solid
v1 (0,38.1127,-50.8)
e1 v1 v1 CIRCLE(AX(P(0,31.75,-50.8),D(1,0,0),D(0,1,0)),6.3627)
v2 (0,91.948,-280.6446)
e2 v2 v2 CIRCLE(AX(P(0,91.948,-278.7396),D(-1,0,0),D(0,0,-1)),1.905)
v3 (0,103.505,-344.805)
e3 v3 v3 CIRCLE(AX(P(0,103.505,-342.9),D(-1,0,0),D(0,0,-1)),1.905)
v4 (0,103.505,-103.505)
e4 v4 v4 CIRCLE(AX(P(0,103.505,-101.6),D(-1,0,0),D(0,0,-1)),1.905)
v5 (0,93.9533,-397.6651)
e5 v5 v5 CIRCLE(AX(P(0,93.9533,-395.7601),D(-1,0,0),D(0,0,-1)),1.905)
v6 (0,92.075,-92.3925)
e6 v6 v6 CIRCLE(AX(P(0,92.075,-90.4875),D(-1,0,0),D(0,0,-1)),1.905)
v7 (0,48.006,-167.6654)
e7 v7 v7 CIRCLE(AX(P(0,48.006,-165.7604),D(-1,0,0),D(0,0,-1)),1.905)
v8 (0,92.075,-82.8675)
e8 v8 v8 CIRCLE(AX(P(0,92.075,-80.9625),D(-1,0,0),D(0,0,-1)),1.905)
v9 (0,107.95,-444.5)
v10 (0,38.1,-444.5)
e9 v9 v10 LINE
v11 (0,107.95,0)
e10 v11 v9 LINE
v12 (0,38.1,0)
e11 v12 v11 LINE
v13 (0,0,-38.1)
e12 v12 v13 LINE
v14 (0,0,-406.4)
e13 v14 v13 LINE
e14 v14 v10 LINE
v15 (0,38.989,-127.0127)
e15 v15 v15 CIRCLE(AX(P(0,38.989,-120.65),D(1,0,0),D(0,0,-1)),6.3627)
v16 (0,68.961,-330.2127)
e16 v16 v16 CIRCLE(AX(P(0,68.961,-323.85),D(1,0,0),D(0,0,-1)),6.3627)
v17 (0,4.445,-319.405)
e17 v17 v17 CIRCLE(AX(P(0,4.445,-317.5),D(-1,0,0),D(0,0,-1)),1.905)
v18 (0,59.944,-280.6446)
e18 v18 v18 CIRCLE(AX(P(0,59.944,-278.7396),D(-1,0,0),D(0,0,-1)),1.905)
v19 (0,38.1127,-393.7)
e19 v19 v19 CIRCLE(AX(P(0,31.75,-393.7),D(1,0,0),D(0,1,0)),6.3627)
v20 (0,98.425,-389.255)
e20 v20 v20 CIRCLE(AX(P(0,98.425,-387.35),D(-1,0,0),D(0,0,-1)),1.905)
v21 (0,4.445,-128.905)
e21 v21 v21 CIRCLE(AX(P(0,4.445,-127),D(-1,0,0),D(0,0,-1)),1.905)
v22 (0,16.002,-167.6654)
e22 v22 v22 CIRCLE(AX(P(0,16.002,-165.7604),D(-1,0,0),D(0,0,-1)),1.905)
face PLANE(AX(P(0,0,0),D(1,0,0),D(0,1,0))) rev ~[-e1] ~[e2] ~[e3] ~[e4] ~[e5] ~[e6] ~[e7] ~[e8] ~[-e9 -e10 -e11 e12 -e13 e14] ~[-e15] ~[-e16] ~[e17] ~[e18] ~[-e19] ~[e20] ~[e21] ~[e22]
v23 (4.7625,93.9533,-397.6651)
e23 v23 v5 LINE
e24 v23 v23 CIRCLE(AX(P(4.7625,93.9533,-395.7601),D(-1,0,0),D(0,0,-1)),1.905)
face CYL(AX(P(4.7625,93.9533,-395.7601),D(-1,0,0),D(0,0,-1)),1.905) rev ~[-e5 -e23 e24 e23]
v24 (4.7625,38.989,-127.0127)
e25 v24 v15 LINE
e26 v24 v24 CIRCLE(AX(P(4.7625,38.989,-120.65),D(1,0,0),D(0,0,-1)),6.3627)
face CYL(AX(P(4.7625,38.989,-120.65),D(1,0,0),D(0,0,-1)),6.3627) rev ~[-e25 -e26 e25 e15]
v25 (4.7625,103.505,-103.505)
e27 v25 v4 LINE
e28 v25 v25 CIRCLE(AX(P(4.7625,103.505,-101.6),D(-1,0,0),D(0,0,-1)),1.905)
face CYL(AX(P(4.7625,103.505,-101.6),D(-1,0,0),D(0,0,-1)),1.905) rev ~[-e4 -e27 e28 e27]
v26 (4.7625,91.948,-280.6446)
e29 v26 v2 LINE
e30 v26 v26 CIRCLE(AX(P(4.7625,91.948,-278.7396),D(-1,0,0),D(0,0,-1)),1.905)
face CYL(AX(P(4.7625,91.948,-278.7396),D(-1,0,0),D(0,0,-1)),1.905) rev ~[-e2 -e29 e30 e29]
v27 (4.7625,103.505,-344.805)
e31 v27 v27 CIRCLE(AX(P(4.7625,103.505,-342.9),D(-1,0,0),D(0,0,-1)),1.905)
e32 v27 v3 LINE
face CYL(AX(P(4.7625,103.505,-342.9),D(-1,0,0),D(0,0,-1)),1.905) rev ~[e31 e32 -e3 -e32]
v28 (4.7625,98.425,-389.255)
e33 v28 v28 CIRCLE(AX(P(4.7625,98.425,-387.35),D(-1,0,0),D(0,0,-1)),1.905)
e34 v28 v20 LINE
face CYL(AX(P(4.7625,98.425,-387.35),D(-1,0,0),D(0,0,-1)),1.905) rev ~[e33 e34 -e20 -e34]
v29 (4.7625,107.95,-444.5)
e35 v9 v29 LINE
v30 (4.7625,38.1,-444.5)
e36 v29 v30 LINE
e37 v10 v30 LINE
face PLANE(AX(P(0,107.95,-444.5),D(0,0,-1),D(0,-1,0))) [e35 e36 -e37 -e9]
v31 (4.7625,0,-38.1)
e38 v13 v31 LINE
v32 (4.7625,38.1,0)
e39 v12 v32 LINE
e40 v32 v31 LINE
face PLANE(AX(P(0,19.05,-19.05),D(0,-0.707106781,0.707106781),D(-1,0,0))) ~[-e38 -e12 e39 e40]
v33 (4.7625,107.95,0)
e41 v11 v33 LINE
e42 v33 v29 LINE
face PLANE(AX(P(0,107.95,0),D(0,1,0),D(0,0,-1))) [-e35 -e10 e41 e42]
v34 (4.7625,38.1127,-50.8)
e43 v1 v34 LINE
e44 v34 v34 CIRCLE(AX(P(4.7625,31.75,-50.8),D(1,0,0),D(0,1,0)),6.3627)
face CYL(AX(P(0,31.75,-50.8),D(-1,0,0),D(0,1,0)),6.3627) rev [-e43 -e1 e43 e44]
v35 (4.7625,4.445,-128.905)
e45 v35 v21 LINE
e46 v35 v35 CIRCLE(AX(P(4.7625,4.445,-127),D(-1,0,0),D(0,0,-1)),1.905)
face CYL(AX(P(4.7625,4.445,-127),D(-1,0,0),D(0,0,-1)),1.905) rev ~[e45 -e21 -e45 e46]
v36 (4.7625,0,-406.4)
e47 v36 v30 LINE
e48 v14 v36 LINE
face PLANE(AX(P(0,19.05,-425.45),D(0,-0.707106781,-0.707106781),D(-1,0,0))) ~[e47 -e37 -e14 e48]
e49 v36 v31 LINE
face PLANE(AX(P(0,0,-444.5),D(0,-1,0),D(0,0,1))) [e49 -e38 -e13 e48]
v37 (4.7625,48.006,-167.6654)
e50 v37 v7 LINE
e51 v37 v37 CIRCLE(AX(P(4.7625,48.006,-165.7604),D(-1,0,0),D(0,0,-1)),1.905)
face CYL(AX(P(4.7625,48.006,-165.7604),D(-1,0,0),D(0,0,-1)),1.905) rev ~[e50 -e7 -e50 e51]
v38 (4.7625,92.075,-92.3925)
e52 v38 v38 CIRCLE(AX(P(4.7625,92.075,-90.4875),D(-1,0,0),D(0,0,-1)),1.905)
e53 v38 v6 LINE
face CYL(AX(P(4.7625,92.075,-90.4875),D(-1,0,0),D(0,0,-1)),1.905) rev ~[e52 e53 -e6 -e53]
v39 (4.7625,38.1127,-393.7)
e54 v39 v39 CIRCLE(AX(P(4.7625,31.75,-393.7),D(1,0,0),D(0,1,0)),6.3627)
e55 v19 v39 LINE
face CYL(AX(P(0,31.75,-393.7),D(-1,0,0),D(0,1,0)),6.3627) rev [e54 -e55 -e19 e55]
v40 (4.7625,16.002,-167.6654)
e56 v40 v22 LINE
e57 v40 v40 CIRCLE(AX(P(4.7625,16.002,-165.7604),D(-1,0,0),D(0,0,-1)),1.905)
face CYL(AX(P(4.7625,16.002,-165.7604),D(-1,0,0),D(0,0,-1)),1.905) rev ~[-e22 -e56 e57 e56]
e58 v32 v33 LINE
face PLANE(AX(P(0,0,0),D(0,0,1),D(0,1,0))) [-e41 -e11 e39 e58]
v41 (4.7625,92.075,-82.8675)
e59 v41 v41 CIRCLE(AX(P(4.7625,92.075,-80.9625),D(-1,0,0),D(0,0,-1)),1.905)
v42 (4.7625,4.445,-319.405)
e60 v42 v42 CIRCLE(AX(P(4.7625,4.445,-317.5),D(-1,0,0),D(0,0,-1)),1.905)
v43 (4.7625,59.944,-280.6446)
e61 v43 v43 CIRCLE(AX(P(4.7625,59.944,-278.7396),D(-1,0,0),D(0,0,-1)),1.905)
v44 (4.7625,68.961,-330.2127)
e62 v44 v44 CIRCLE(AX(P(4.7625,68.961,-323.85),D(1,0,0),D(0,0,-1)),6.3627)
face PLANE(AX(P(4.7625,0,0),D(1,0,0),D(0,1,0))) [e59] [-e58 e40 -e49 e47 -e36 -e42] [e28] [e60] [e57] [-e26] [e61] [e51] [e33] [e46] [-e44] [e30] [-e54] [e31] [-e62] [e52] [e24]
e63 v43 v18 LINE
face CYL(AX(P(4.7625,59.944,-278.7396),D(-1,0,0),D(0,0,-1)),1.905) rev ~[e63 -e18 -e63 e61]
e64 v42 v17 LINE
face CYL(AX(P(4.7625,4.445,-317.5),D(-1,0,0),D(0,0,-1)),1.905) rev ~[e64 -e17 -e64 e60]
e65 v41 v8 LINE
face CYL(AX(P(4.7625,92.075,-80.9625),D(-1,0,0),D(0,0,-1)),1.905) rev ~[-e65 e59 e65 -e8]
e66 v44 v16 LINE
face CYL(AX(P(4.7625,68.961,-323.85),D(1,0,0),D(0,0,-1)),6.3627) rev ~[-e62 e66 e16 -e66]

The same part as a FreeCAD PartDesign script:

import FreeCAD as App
import Part
import Sketcher
from FreeCAD import Vector
Q = App.Units.Quantity


def edges_at(feature, points):
    """Names of the edges that pass closest to the given points."""
    edges = feature.Shape.Edges
    near = lambda p: min(range(len(edges)), key=lambda i: edges[i].distToShape(Part.Vertex(*p))[0])
    return sorted({f"Edge{near(p) + 1}" for p in points})


def add_polygon(sketch, points):
    """Adds a closed chain of lines whose ends are joined by coincident constraints."""
    first, n = sketch.GeometryCount, len(points)
    for a, b in zip(points, points[1:] + points[:1]):
        sketch.addGeometry(Part.LineSegment(App.Vector(*a, 0), App.Vector(*b, 0)), False)
    for i in range(n):
        sketch.addConstraint(Sketcher.Constraint("Coincident", first + i, 2, first + (i + 1) % n, 1))

doc = App.newDocument("Part")
body = doc.addObject("PartDesign::Body", "Body")

sketch1 = doc.addObject("Sketcher::SketchObject", "Sketch")
body.addObject(sketch1)
sketch1.AttachmentSupport = (doc.YZ_Plane, [""])
sketch1.MapMode = "FlatFace"
add_polygon(sketch1, [(108, 0), (0, 0), (0, -444), (108, -444)])
sketch1.addGeometry(Part.Circle(Vector(32, -394, 0), Vector(0, 0, 1), 6), False)
sketch1.addGeometry(Part.Circle(Vector(32, -51, 0), Vector(0, 0, 1), 6), False)
sketch1.addConstraint(Sketcher.Constraint("Horizontal", 0))
sketch1.addConstraint(Sketcher.Constraint("Vertical", 1))
sketch1.addConstraint(Sketcher.Constraint("Horizontal", 2))
sketch1.addConstraint(Sketcher.Constraint("Vertical", 3))
sketch1.addConstraint(Sketcher.Constraint("Coincident", 0, 2, -1, 1))
sketch1.addConstraint(Sketcher.Constraint("Equal", 4, 5))
sketch1.addConstraint(Sketcher.Constraint("Vertical", 4, 3, 5, 3))
sketch1.addConstraint(Sketcher.Constraint("Diameter", 4, Q("0.501 in")))
sketch1.addConstraint(Sketcher.Constraint("DistanceY", 1, 2, 1, 1, Q("17.5 in")))
sketch1.addConstraint(Sketcher.Constraint("DistanceY", 5, 3, -1, 1, Q("2 in")))
sketch1.addConstraint(Sketcher.Constraint("DistanceY", 1, 2, 4, 3, Q("2 in")))
sketch1.addConstraint(Sketcher.Constraint("DistanceX", 0, 2, 0, 1, Q("4.25 in")))
sketch1.addConstraint(Sketcher.Constraint("DistanceX", -1, 1, 4, 3, Q("1.25 in")))
pad1 = doc.addObject("PartDesign::Pad", "Pad")
body.addObject(pad1)
pad1.Profile = sketch1
pad1.Length = Q("0.1875 in")
doc.recompute()

chamfer = doc.addObject("PartDesign::Chamfer", "Chamfer")
body.addObject(chamfer)
chamfer.Base = (pad1, edges_at(pad1, [(2.381, 0, 0)]))
chamfer.Size = Q("1.5 in")
doc.recompute()

chamfer2 = doc.addObject("PartDesign::Chamfer", "Chamfer001")
body.addObject(chamfer2)
chamfer2.Base = (chamfer, edges_at(chamfer, [(2.381, 0, -444.5)]))
chamfer2.Size = Q("1.5 in")

sketch2 = doc.addObject("Sketcher::SketchObject", "Sketch001")
body.addObject(sketch2)
sketch2.AttachmentSupport = (doc.YZ_Plane, [""])
sketch2.MapMode = "FlatFace"
sketch2.AttachmentOffset = App.Placement(Vector(0, 0, 0.1875 * 25.4), App.Rotation())
sketch2.addGeometry(Part.Circle(Vector(39, -121, 0), Vector(0, 0, 1), 6), False)
sketch2.addGeometry(Part.Circle(Vector(69, -324, 0), Vector(0, 0, 1), 6), False)
sketch2.addConstraint(Sketcher.Constraint("Equal", 0, 1))
sketch2.addConstraint(Sketcher.Constraint("Diameter", 0, Q("0.501 in")))
sketch2.addConstraint(Sketcher.Constraint("DistanceY", 0, 3, -1, 1, Q("4.75 in")))
sketch2.addConstraint(Sketcher.Constraint("DistanceX", -1, 1, 0, 3, Q("1.535 in")))
sketch2.addConstraint(Sketcher.Constraint("DistanceY", 1, 3, 0, 3, Q("8 in")))
sketch2.addConstraint(Sketcher.Constraint("DistanceX", 0, 3, 1, 3, Q("1.18 in")))
pocket1 = doc.addObject("PartDesign::Pocket", "Pocket")
body.addObject(pocket1)
pocket1.Profile = sketch2
pocket1.Length = Q("1 in")

sketch3 = doc.addObject("Sketcher::SketchObject", "Sketch002")
body.addObject(sketch3)
sketch3.AttachmentSupport = (doc.YZ_Plane, [""])
sketch3.MapMode = "FlatFace"
sketch3.AttachmentOffset = App.Placement(Vector(0, 0, 0.1875 * 25.4), App.Rotation())
sketch3.addGeometry(Part.Circle(Vector(16, -165.8, 0), Vector(0, 0, 1), 1.9), False)
sketch3.addGeometry(Part.Circle(Vector(48, -165.8, 0), Vector(0, 0, 1), 1.9), False)
sketch3.addGeometry(Part.Circle(Vector(91.9, -278.7, 0), Vector(0, 0, 1), 1.9), False)
sketch3.addGeometry(Part.Circle(Vector(59.9, -278.7, 0), Vector(0, 0, 1), 1.9), False)
sketch3.addConstraint(Sketcher.Constraint("Equal", 0, 1))
sketch3.addConstraint(Sketcher.Constraint("Equal", 1, 2))
sketch3.addConstraint(Sketcher.Constraint("Equal", 2, 3))
sketch3.addConstraint(Sketcher.Constraint("Horizontal", 0, 3, 1, 3))
sketch3.addConstraint(Sketcher.Constraint("Horizontal", 2, 3, 3, 3))
sketch3.addConstraint(Sketcher.Constraint("Diameter", 0, Q("0.15 in")))
sketch3.addConstraint(Sketcher.Constraint("DistanceX", -1, 1, 0, 3, Q("0.63 in")))
sketch3.addConstraint(Sketcher.Constraint("DistanceX", -1, 1, 1, 3, Q("1.89 in")))
sketch3.addConstraint(Sketcher.Constraint("DistanceX", -1, 1, 2, 3, Q("3.62 in")))
sketch3.addConstraint(Sketcher.Constraint("DistanceX", -1, 1, 3, 3, Q("2.36 in")))
sketch3.addConstraint(Sketcher.Constraint("DistanceY", 0, 3, -1, 1, Q("6.526 in")))
sketch3.addConstraint(Sketcher.Constraint("DistanceY", 2, 3, -1, 1, Q("10.974 in")))
doc.recompute()
hole = doc.addObject("PartDesign::Hole", "Hole")
body.addObject(hole)
hole.Profile = sketch3
hole.ThreadType = "None"
hole.Diameter = Q("0.15 in")
hole.DepthType = "ThroughAll"

sketch4 = doc.addObject("Sketcher::SketchObject", "Sketch003")
body.addObject(sketch4)
sketch4.AttachmentSupport = (doc.YZ_Plane, [""])
sketch4.MapMode = "FlatFace"
sketch4.AttachmentOffset = App.Placement(Vector(0, 0, 0.1875 * 25.4), App.Rotation())
sketch4.addGeometry(Part.Circle(Vector(92.1, -81, 0), Vector(0, 0, 1), 1.9), False)
sketch4.addGeometry(Part.Circle(Vector(92.1, -90.5, 0), Vector(0, 0, 1), 1.9), False)
sketch4.addGeometry(Part.Circle(Vector(98.4, -387.4, 0), Vector(0, 0, 1), 1.9), False)
sketch4.addGeometry(Part.Circle(Vector(94, -395.8, 0), Vector(0, 0, 1), 1.9), False)
sketch4.addConstraint(Sketcher.Constraint("Equal", 0, 1))
sketch4.addConstraint(Sketcher.Constraint("Equal", 1, 2))
sketch4.addConstraint(Sketcher.Constraint("Equal", 2, 3))
sketch4.addConstraint(Sketcher.Constraint("Vertical", 0, 3, 1, 3))
sketch4.addConstraint(Sketcher.Constraint("Diameter", 0, Q("0.15 in")))
sketch4.addConstraint(Sketcher.Constraint("DistanceY", 2, 3, -1, 1, Q("15.25 in")))
sketch4.addConstraint(Sketcher.Constraint("DistanceX", 1, 3, 2, 3, Q("0.25 in")))
sketch4.addConstraint(Sketcher.Constraint("DistanceX", -1, 1, 0, 3, Q("3.625 in")))
sketch4.addConstraint(Sketcher.Constraint("DistanceY", 0, 3, -1, 1, Q("3.1875 in")))
sketch4.addConstraint(Sketcher.Constraint("DistanceY", 1, 3, -1, 1, Q("3.5625 in")))
sketch4.addConstraint(Sketcher.Constraint("DistanceY", 3, 3, -1, 1, Q("15.5811 in")))
sketch4.addConstraint(Sketcher.Constraint("DistanceX", -1, 1, 3, 3, 93.9533))
doc.recompute()
hole2 = doc.addObject("PartDesign::Hole", "Hole001")
body.addObject(hole2)
hole2.Profile = sketch4
hole2.ThreadType = "None"
hole2.Diameter = Q("0.15 in")
hole2.DepthType = "Dimension"
hole2.Depth = Q("1 in")
hole2.DrillPoint = "Angled"
hole2.DrillPointAngle = 118

sketch5 = doc.addObject("Sketcher::SketchObject", "Sketch004")
body.addObject(sketch5)
sketch5.AttachmentSupport = (doc.YZ_Plane, [""])
sketch5.MapMode = "FlatFace"
sketch5.AttachmentOffset = App.Placement(Vector(0, 0, 0.1875 * 25.4), App.Rotation())
sketch5.addGeometry(Part.Circle(Vector(103.5, -101.6, 0), Vector(0, 0, 1), 1.9), False)
sketch5.addGeometry(Part.Circle(Vector(103.5, -342.9, 0), Vector(0, 0, 1), 1.9), False)
sketch5.addGeometry(Part.Circle(Vector(4.4, -127, 0), Vector(0, 0, 1), 1.9), False)
sketch5.addGeometry(Part.Circle(Vector(4.4, -317.5, 0), Vector(0, 0, 1), 1.9), False)
sketch5.addConstraint(Sketcher.Constraint("Equal", 0, 1))
sketch5.addConstraint(Sketcher.Constraint("Equal", 1, 2))
sketch5.addConstraint(Sketcher.Constraint("Equal", 2, 3))
sketch5.addConstraint(Sketcher.Constraint("Vertical", 0, 3, 1, 3))
sketch5.addConstraint(Sketcher.Constraint("Vertical", 2, 3, 3, 3))
sketch5.addConstraint(Sketcher.Constraint("Diameter", 0, Q("0.15 in")))
sketch5.addConstraint(Sketcher.Constraint("DistanceY", 0, 3, -1, 1, Q("4 in")))
sketch5.addConstraint(Sketcher.Constraint("DistanceY", 2, 3, -1, 1, Q("5 in")))
sketch5.addConstraint(Sketcher.Constraint("DistanceY", 1, 3, 3, 3, Q("1 in")))
sketch5.addConstraint(Sketcher.Constraint("DistanceY", 1, 3, -1, 1, Q("13.5 in")))
sketch5.addConstraint(Sketcher.Constraint("DistanceX", 2, 3, 0, 3, Q("3.9 in")))
sketch5.addConstraint(Sketcher.Constraint("DistanceX", -1, 1, 0, 3, Q("4.075 in")))
doc.recompute()
hole3 = doc.addObject("PartDesign::Hole", "Hole002")
body.addObject(hole3)
hole3.Profile = sketch5
hole3.ThreadType = "None"
hole3.Diameter = Q("0.15 in")
hole3.DepthType = "Dimension"
hole3.Depth = Q("1 in")
hole3.DrillPoint = "Angled"
hole3.DrillPointAngle = 118

doc.recompute()
